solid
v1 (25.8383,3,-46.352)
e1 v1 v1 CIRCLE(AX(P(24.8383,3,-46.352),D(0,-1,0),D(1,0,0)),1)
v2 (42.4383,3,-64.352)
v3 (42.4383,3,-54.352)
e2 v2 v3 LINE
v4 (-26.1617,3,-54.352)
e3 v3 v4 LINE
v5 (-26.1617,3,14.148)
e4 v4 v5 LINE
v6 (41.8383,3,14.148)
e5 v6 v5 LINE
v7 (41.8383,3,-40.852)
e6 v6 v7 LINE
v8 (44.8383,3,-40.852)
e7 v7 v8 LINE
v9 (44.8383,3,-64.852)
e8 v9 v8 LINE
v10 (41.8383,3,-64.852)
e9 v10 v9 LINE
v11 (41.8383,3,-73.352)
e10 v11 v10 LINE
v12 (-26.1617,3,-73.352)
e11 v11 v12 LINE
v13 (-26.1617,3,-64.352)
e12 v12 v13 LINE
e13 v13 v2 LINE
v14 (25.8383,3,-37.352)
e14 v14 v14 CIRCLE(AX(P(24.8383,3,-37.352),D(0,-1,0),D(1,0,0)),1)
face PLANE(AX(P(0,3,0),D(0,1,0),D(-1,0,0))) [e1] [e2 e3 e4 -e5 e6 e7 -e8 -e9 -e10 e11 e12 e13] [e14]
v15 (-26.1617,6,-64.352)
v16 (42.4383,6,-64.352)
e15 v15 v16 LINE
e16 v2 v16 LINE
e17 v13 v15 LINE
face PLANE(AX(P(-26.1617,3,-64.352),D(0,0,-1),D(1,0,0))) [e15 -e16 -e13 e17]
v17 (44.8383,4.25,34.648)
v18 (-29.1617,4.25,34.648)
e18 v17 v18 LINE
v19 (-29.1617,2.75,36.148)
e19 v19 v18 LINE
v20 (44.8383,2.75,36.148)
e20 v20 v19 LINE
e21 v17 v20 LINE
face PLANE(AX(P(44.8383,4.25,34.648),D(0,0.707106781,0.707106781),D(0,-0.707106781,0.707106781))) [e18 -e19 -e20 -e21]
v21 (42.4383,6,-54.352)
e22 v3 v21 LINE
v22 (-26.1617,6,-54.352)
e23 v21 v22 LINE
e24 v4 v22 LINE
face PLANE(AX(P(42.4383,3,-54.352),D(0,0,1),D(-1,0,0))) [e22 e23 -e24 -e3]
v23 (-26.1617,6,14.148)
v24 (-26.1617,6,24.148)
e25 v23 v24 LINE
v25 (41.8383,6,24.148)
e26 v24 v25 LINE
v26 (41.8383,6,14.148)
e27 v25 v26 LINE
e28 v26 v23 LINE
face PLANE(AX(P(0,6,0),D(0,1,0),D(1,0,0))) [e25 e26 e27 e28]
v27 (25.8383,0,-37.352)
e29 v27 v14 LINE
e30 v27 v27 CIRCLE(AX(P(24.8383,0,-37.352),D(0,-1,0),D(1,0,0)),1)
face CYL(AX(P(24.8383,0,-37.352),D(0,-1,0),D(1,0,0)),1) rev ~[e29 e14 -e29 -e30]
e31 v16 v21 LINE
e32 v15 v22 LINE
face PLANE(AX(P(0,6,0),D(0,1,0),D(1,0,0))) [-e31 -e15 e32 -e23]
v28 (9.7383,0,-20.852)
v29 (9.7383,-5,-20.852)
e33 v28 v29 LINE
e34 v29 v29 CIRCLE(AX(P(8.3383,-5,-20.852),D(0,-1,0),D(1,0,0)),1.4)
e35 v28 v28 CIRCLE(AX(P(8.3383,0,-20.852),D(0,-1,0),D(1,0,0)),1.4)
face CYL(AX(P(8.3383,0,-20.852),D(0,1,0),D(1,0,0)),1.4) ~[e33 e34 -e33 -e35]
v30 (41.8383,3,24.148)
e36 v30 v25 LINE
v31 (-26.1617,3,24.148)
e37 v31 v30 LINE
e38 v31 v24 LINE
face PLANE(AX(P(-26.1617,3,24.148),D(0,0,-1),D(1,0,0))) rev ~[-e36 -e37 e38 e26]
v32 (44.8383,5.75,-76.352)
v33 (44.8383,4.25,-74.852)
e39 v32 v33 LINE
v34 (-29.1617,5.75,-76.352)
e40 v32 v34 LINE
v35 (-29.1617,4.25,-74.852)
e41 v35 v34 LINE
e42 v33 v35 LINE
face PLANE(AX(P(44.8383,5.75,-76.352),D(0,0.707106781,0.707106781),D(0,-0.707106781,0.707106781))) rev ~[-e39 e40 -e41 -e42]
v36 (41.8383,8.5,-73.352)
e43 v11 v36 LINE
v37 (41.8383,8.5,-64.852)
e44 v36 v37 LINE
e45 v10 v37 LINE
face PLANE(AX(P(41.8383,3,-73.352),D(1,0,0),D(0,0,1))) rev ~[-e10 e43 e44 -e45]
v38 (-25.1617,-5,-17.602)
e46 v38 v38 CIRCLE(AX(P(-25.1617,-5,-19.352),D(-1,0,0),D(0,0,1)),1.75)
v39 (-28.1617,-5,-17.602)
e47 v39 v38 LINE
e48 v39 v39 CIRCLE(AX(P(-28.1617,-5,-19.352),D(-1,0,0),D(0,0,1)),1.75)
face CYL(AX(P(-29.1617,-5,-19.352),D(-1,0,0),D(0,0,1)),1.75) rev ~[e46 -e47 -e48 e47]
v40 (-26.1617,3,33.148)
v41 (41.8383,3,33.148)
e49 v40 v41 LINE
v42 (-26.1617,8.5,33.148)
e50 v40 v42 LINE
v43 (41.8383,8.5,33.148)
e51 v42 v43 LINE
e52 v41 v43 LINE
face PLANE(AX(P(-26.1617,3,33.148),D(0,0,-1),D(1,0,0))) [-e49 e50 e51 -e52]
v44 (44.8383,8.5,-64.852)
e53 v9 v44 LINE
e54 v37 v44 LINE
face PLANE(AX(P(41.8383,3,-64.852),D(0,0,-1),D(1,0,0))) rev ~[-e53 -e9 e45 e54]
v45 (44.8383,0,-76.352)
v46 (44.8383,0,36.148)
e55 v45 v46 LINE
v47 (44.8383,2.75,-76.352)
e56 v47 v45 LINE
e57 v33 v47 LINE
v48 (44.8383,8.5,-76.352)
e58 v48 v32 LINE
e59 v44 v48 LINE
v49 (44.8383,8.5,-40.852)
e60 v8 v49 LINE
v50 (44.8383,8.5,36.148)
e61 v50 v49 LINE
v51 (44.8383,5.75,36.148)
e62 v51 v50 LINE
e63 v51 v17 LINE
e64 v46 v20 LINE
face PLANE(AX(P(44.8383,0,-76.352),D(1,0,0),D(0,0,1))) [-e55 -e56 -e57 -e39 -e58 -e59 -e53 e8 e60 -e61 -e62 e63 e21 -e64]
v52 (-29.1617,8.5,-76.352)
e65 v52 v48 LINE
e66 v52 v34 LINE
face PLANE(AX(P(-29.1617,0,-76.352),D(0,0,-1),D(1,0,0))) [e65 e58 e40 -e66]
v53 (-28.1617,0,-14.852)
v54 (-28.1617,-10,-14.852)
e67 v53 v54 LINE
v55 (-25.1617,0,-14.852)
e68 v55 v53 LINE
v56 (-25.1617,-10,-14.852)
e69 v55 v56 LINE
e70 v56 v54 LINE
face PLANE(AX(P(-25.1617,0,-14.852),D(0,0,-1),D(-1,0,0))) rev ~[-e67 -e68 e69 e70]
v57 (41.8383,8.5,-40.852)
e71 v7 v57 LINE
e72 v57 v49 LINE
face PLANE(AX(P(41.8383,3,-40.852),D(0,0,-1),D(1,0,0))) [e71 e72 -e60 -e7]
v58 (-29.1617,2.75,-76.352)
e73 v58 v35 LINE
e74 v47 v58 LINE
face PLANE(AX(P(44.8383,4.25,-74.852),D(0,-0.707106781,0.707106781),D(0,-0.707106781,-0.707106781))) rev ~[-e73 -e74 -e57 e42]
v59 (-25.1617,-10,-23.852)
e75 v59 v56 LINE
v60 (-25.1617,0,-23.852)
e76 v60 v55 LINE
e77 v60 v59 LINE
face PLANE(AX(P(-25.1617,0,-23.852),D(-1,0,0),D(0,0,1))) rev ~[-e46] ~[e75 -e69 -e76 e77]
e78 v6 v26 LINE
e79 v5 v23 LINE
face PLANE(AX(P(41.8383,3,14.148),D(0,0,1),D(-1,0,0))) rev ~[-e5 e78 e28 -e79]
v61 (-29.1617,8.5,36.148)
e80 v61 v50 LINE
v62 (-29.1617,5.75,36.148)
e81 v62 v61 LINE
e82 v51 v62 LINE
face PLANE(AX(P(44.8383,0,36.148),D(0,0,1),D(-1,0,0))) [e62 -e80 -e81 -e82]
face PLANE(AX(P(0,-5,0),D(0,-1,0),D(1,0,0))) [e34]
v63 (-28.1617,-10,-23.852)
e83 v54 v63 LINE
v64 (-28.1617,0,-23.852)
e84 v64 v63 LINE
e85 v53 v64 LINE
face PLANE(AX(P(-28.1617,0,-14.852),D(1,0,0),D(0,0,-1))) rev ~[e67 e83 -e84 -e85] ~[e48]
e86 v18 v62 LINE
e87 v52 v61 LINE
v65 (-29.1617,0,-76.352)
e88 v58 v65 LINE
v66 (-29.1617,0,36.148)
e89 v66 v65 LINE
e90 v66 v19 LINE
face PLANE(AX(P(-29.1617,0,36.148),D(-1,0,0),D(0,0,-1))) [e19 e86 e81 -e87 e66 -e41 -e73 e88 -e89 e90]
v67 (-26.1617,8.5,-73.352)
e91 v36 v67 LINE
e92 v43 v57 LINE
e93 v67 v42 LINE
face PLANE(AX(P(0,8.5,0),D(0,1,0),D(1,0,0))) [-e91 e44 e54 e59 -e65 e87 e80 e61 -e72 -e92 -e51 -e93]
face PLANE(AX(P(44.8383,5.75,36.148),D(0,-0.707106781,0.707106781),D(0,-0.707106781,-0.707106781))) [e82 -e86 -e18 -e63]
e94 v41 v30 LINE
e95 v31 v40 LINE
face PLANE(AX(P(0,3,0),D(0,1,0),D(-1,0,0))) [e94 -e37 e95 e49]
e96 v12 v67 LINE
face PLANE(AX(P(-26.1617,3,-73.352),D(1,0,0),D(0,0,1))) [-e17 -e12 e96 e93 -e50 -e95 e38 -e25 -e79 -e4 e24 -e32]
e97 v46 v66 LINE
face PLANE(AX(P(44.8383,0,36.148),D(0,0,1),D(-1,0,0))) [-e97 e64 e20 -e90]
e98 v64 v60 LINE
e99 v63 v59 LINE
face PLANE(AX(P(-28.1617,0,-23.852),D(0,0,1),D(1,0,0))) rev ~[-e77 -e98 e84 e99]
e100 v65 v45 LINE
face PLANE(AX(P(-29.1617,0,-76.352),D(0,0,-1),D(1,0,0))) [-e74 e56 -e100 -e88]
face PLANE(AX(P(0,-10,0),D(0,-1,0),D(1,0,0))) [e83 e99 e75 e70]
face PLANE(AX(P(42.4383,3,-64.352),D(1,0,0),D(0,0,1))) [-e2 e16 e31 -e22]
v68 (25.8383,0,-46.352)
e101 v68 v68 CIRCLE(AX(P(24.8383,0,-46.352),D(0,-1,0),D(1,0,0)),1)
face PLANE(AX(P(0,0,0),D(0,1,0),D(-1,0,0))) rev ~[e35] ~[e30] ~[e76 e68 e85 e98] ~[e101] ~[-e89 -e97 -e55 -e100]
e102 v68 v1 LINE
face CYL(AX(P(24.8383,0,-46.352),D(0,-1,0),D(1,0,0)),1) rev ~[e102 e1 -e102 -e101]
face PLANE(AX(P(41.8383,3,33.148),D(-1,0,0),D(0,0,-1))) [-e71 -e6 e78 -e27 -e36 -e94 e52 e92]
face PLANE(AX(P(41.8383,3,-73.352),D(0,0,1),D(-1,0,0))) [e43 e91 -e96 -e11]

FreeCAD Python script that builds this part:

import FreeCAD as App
import Part
import Sketcher
from FreeCAD import Vector

doc = App.newDocument("Part")
body = doc.addObject("PartDesign::Body", "Body")

# Sketch on XZ plane
sketch1 = body.newObject("Sketcher::SketchObject", "Sketch")
sketch1.AttachmentSupport = (doc.getObject("XZ_Plane"), [""])
sketch1.MapMode = "FlatFace"
sketch1.addGeometry([
    Part.LineSegment(Vector(-29, -76, 0), Vector(-29, 36, 0)),
    Part.LineSegment(Vector(-29, 36, 0), Vector(45, 36, 0)),
    Part.LineSegment(Vector(45, 36, 0), Vector(45, -76, 0)),
    Part.LineSegment(Vector(45, -76, 0), Vector(-29, -76, 0)),
], False)
sketch1.addConstraint([
    Sketcher.Constraint("Coincident", 0, 2, 1, 1),
    Sketcher.Constraint("Coincident", 1, 2, 2, 1),
    Sketcher.Constraint("Coincident", 2, 2, 3, 1),
    Sketcher.Constraint("Coincident", 3, 2, 0, 1),
    Sketcher.Constraint("Vertical", 0),
    Sketcher.Constraint("Horizontal", 1),
    Sketcher.Constraint("Vertical", 2),
    Sketcher.Constraint("Horizontal", 3),
    Sketcher.Constraint("DistanceX", 1, 1, 1, 2, 74.0),
    Sketcher.Constraint("DistanceY", 0, 1, 0, 2, 112.5),
    Sketcher.Constraint("DistanceY", -1, 1, 0, 2, 36.148),
    Sketcher.Constraint("DistanceX", 0, 2, -1, 1, 29.1617),
])
pad1 = body.newObject("PartDesign::Pad", "Pad")
pad1.Profile = sketch1
pad1.Length = 3
pad1.Reversed = True

# Sketch on XZ plane
sketch2 = body.newObject("Sketcher::SketchObject", "Sketch001")
sketch2.AttachmentSupport = (doc.getObject("XZ_Plane"), [""])
sketch2.MapMode = "FlatFace"
sketch2.AttachmentOffset = App.Placement(Vector(0, 0, -3), App.Rotation())
sketch2.addGeometry([
    Part.LineSegment(Vector(44.8, -76.4, 0), Vector(-29.2, -76.4, 0)),  # 0
    Part.LineSegment(Vector(-29.2, -76.4, 0), Vector(-29.2, 36.1, 0)),  # 1
    Part.LineSegment(Vector(-29.2, 36.1, 0), Vector(44.8, 36.1, 0)),  # 2
    Part.LineSegment(Vector(44.8, 36.1, 0), Vector(44.8, -40.9, 0)),  # 3
    Part.LineSegment(Vector(44.8, -40.9, 0), Vector(41.8, -40.9, 0)),  # 4
    Part.LineSegment(Vector(41.8, -40.9, 0), Vector(41.8, 33.1, 0)),  # 5
    Part.LineSegment(Vector(41.8, 33.1, 0), Vector(-26.2, 33.1, 0)),  # 6
    Part.LineSegment(Vector(-26.2, 33.1, 0), Vector(-26.2, -73.4, 0)),  # 7
    Part.LineSegment(Vector(-26.2, -73.4, 0), Vector(41.8, -73.4, 0)),  # 8
    Part.LineSegment(Vector(41.8, -73.4, 0), Vector(41.8, -64.9, 0)),  # 9
    Part.LineSegment(Vector(41.8, -64.9, 0), Vector(44.8, -64.9, 0)),  # 10
    Part.LineSegment(Vector(44.8, -64.9, 0), Vector(44.8, -76.4, 0)),  # 11
], False)
sketch2.addConstraint([
    Sketcher.Constraint("Coincident", 0, 2, 1, 1),
    Sketcher.Constraint("Coincident", 1, 2, 2, 1),
    Sketcher.Constraint("Coincident", 2, 2, 3, 1),
    Sketcher.Constraint("Coincident", 3, 2, 4, 1),
    Sketcher.Constraint("Coincident", 4, 2, 5, 1),
    Sketcher.Constraint("Coincident", 5, 2, 6, 1),
    Sketcher.Constraint("Coincident", 6, 2, 7, 1),
    Sketcher.Constraint("Coincident", 7, 2, 8, 1),
    Sketcher.Constraint("Coincident", 8, 2, 9, 1),
    Sketcher.Constraint("Coincident", 9, 2, 10, 1),
    Sketcher.Constraint("Coincident", 10, 2, 11, 1),
    Sketcher.Constraint("Coincident", 11, 2, 0, 1),
    Sketcher.Constraint("Horizontal", 0),
    Sketcher.Constraint("Vertical", 1),
    Sketcher.Constraint("Horizontal", 2),
    Sketcher.Constraint("Vertical", 3),
    Sketcher.Constraint("Horizontal", 4),
    Sketcher.Constraint("Vertical", 5),
    Sketcher.Constraint("Horizontal", 6),
    Sketcher.Constraint("Vertical", 7),
    Sketcher.Constraint("Horizontal", 8),
    Sketcher.Constraint("Vertical", 9),
    Sketcher.Constraint("Horizontal", 10),
    Sketcher.Constraint("Vertical", 11),
    Sketcher.Constraint("Vertical", 5, 2, 8, 2),
    Sketcher.Constraint("Vertical", 3, 2, 10, 2),
    Sketcher.Constraint("Equal", 2, 5),
    Sketcher.Constraint("DistanceX", 4, 2, 4, 1, 3.0),
    Sketcher.Constraint("DistanceY", 9, 1, 9, 2, 8.5),
    Sketcher.Constraint("DistanceY", 5, 2, 2, 2, 3.0),
    Sketcher.Constraint("DistanceX", 1, 2, 6, 2, 3.0),
    Sketcher.Constraint("DistanceY", 0, 2, 7, 2, 3.0),
    Sketcher.Constraint("DistanceY", 9, 2, 4, 2, 24.0),
    Sketcher.Constraint("DistanceX", 0, 2, 0, 1, 74.0),
    Sketcher.Constraint("DistanceY", 0, 2, -1, 1, 76.352),
    Sketcher.Constraint("DistanceX", 0, 2, -1, 1, 29.1617),
])
pad2 = body.newObject("PartDesign::Pad", "Pad001")
pad2.Profile = sketch2
pad2.Length = 5.5
pad2.Reversed = True

# Sketch on XZ plane
sketch3 = body.newObject("Sketcher::SketchObject", "Sketch002")
sketch3.AttachmentSupport = (doc.getObject("XZ_Plane"), [""])
sketch3.MapMode = "FlatFace"
sketch3.addGeometry([
    Part.LineSegment(Vector(-25.2, -23.9, 0), Vector(-25.2, -14.9, 0)),
    Part.LineSegment(Vector(-25.2, -14.9, 0), Vector(-28.2, -14.9, 0)),
    Part.LineSegment(Vector(-28.2, -14.9, 0), Vector(-28.2, -23.9, 0)),
    Part.LineSegment(Vector(-28.2, -23.9, 0), Vector(-25.2, -23.9, 0)),
], False)
sketch3.addConstraint([
    Sketcher.Constraint("Coincident", 0, 2, 1, 1),
    Sketcher.Constraint("Coincident", 1, 2, 2, 1),
    Sketcher.Constraint("Coincident", 2, 2, 3, 1),
    Sketcher.Constraint("Coincident", 3, 2, 0, 1),
    Sketcher.Constraint("Vertical", 0),
    Sketcher.Constraint("Horizontal", 1),
    Sketcher.Constraint("Vertical", 2),
    Sketcher.Constraint("Horizontal", 3),
    Sketcher.Constraint("DistanceX", 1, 2, 1, 1, 3.0),
    Sketcher.Constraint("DistanceY", 0, 1, 0, 2, 9.0),
    Sketcher.Constraint("DistanceY", 0, 2, -1, 1, 14.852),
    Sketcher.Constraint("DistanceX", 0, 2, -1, 1, 25.1617),
])
pad3 = body.newObject("PartDesign::Pad", "Pad002")
pad3.Profile = sketch3
pad3.Length = 10

# Sketch on XZ plane
sketch4 = body.newObject("Sketcher::SketchObject", "Sketch003")
sketch4.AttachmentSupport = (doc.getObject("XZ_Plane"), [""])
sketch4.MapMode = "FlatFace"
sketch4.addGeometry([
    Part.Circle(Vector(24.8, -37.4, 0), Vector(0, 0, 1), 1),
    Part.Circle(Vector(24.8, -46.4, 0), Vector(0, 0, 1), 1),
], False)
sketch4.addConstraint([
    Sketcher.Constraint("Equal", 0, 1),
    Sketcher.Constraint("Vertical", 0, 3, 1, 3),
    Sketcher.Constraint("Diameter", 0, 2.0),
    Sketcher.Constraint("DistanceY", 1, 3, 0, 3, 9.0),
    Sketcher.Constraint("DistanceY", 0, 3, -1, 1, 37.352),
    Sketcher.Constraint("DistanceX", -1, 1, 0, 3, 24.8383),
])
pocket1 = body.newObject("PartDesign::Pocket", "Pocket")
pocket1.Profile = sketch4
pocket1.Length = 10

# Sketch on XZ plane
sketch5 = body.newObject("Sketcher::SketchObject", "Sketch004")
sketch5.AttachmentSupport = (doc.getObject("XZ_Plane"), [""])
sketch5.MapMode = "FlatFace"
sketch5.AttachmentOffset = App.Placement(Vector(0, 0, -3), App.Rotation())
sketch5.addGeometry([
    Part.LineSegment(Vector(-26, -64, 0), Vector(-26, -54, 0)),  # 0
    Part.LineSegment(Vector(-26, -54, 0), Vector(42, -54, 0)),  # 1
    Part.LineSegment(Vector(42, -54, 0), Vector(42, -64, 0)),  # 2
    Part.LineSegment(Vector(42, -64, 0), Vector(-26, -64, 0)),  # 3
    Part.LineSegment(Vector(-26, 24, 0), Vector(42, 24, 0)),  # 4
    Part.LineSegment(Vector(42, 24, 0), Vector(42, 14, 0)),  # 5
    Part.LineSegment(Vector(42, 14, 0), Vector(-26, 14, 0)),  # 6
    Part.LineSegment(Vector(-26, 14, 0), Vector(-26, 24, 0)),  # 7
], False)
sketch5.addConstraint([
    Sketcher.Constraint("Coincident", 0, 2, 1, 1),
    Sketcher.Constraint("Coincident", 1, 2, 2, 1),
    Sketcher.Constraint("Coincident", 2, 2, 3, 1),
    Sketcher.Constraint("Coincident", 3, 2, 0, 1),
    Sketcher.Constraint("Coincident", 4, 2, 5, 1),
    Sketcher.Constraint("Coincident", 5, 2, 6, 1),
    Sketcher.Constraint("Coincident", 6, 2, 7, 1),
    Sketcher.Constraint("Coincident", 7, 2, 4, 1),
    Sketcher.Constraint("Vertical", 0),
    Sketcher.Constraint("Horizontal", 1),
    Sketcher.Constraint("Vertical", 2),
    Sketcher.Constraint("Horizontal", 3),
    Sketcher.Constraint("Horizontal", 4),
    Sketcher.Constraint("Vertical", 5),
    Sketcher.Constraint("Horizontal", 6),
    Sketcher.Constraint("Vertical", 7),
    Sketcher.Constraint("Vertical", 3, 2, 6, 2),
    Sketcher.Constraint("Equal", 2, 5),
    Sketcher.Constraint("DistanceY", 0, 1, 0, 2, 10.0),
    Sketcher.Constraint("DistanceX", 4, 1, 4, 2, 68.0),
    Sketcher.Constraint("DistanceX", 1, 1, 1, 2, 68.6),
    Sketcher.Constraint("DistanceY", 1, 2, 4, 2, 78.5),
    Sketcher.Constraint("DistanceY", 0, 2, -1, 1, 54.352),
    Sketcher.Constraint("DistanceX", 0, 2, -1, 1, 26.1617),
])
pad4 = body.newObject("PartDesign::Pad", "Pad003")
pad4.Profile = sketch5
pad4.Length = 3
pad4.Reversed = True

# Sketch on YZ plane
sketch6 = body.newObject("Sketcher::SketchObject", "Sketch005")
sketch6.AttachmentSupport = (doc.getObject("YZ_Plane"), [""])
sketch6.MapMode = "FlatFace"
sketch6.AttachmentOffset = App.Placement(Vector(0, 0, -29.1617), App.Rotation())
sketch6.addGeometry(Part.Circle(Vector(-5, -19.4, 0), Vector(0, 0, 1), 1.8), False)
sketch6.addConstraint([
    Sketcher.Constraint("Diameter", 0, 3.5),
    Sketcher.Constraint("DistanceX", 0, 3, -1, 1, 5.0),
    Sketcher.Constraint("DistanceY", 0, 3, -1, 1, 19.352),
])
pocket2 = body.newObject("PartDesign::Pocket", "Pocket001")
pocket2.Profile = sketch6
pocket2.Length = 10
pocket2.Reversed = True

# Sketch on YZ plane
sketch7 = body.newObject("Sketcher::SketchObject", "Sketch006")
sketch7.AttachmentSupport = (doc.getObject("YZ_Plane"), [""])
sketch7.MapMode = "FlatFace"
sketch7.AttachmentOffset = App.Placement(Vector(0, 0, 44.8383), App.Rotation())
sketch7.addGeometry([
    Part.LineSegment(Vector(5.8, 36.1, 0), Vector(2.8, 36.1, 0)),
    Part.LineSegment(Vector(2.8, 36.1, 0), Vector(4.2, 34.6, 0)),
    Part.LineSegment(Vector(4.2, 34.6, 0), Vector(5.8, 36.1, 0)),
], False)
sketch7.addConstraint([
    Sketcher.Constraint("Coincident", 0, 2, 1, 1),
    Sketcher.Constraint("Coincident", 1, 2, 2, 1),
    Sketcher.Constraint("Coincident", 2, 2, 0, 1),
    Sketcher.Constraint("Horizontal", 0),
    Sketcher.Constraint("Perpendicular", 1, 2),
    Sketcher.Constraint("Equal", 1, 2),
    Sketcher.Constraint("DistanceX", 0, 2, 1, 2, 1.5),
    Sketcher.Constraint("DistanceX", -1, 1, 1, 2, 4.25),
    Sketcher.Constraint("DistanceY", -1, 1, 0, 2, 36.148),
])
pocket3 = body.newObject("PartDesign::Pocket", "Pocket002")
pocket3.Profile = sketch7
pocket3.Length = 75

# Sketch on YZ plane
sketch8 = body.newObject("Sketcher::SketchObject", "Sketch007")
sketch8.AttachmentSupport = (doc.getObject("YZ_Plane"), [""])
sketch8.MapMode = "FlatFace"
sketch8.AttachmentOffset = App.Placement(Vector(0, 0, 44.8383), App.Rotation())
sketch8.addGeometry([
    Part.LineSegment(Vector(4.2, -74.9, 0), Vector(2.8, -76.4, 0)),
    Part.LineSegment(Vector(2.8, -76.4, 0), Vector(5.8, -76.4, 0)),
    Part.LineSegment(Vector(5.8, -76.4, 0), Vector(4.2, -74.9, 0)),
], False)
sketch8.addConstraint([
    Sketcher.Constraint("Coincident", 0, 2, 1, 1),
    Sketcher.Constraint("Coincident", 1, 2, 2, 1),
    Sketcher.Constraint("Coincident", 2, 2, 0, 1),
    Sketcher.Constraint("Horizontal", 1),
    Sketcher.Constraint("Perpendicular", 0, 2),
    Sketcher.Constraint("Equal", 0, 2),
    Sketcher.Constraint("DistanceX", 0, 2, 2, 2, 1.5),
    Sketcher.Constraint("DistanceX", -1, 1, 2, 2, 4.25),
    Sketcher.Constraint("DistanceY", 0, 2, -1, 1, 76.352),
])
pocket4 = body.newObject("PartDesign::Pocket", "Pocket003")
pocket4.Profile = sketch8
pocket4.Length = 75

# Sketch on XZ plane
sketch9 = body.newObject("Sketcher::SketchObject", "Sketch008")
sketch9.AttachmentSupport = (doc.getObject("XZ_Plane"), [""])
sketch9.MapMode = "FlatFace"
sketch9.addGeometry(Part.Circle(Vector(8.3, -20.9, 0), Vector(0, 0, 1), 1.4), False)
sketch9.addConstraint([
    Sketcher.Constraint("Diameter", 0, 2.8),
    Sketcher.Constraint("DistanceY", 0, 3, -1, 1, 20.852),
    Sketcher.Constraint("DistanceX", -1, 1, 0, 3, 8.3383),
])
pad5 = body.newObject("PartDesign::Pad", "Pad004")
pad5.Profile = sketch9
pad5.Length = 5

doc.recompute()
